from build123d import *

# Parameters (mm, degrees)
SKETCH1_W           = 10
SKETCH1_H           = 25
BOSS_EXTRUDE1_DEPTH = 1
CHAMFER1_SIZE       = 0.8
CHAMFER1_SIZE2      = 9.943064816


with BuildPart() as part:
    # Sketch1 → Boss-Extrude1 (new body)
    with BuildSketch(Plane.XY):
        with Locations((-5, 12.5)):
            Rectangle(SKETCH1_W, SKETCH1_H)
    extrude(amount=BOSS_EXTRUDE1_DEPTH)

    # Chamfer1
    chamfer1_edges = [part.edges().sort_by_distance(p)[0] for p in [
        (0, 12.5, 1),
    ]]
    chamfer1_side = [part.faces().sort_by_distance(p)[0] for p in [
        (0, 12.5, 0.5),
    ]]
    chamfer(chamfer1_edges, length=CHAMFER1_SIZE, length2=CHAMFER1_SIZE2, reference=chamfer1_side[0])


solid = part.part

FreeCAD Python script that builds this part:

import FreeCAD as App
import Part
import Sketcher


def edges_at(feature, points):
    """Names of the edges that pass closest to the given points."""
    edges = feature.Shape.Edges
    near = lambda p: min(range(len(edges)), key=lambda i: edges[i].distToShape(Part.Vertex(*p))[0])
    return sorted({f"Edge{near(p) + 1}" for p in points})

doc = App.newDocument("Part")
params = doc.addObject("Spreadsheet::Sheet", "Params")
for row, (alias, value) in enumerate([
    ("sketch1_width", "10 mm"),
    ("sketch1_height", "25 mm"),
    ("pad1_length", "1 mm"),
    ("chamfer_size", "0.8 mm"),
    ("chamfer_size2", "9.943065 mm"),
], start=1):
    params.set(f"A{row}", alias)
    params.set(f"B{row}", "=" + value)
    params.setAlias(f"B{row}", alias)

body = doc.addObject("PartDesign::Body", "Body")

sketch1 = doc.addObject("Sketcher::SketchObject", "Sketch")
body.addObject(sketch1)
sketch1.AttachmentSupport = (doc.XY_Plane, [""])
sketch1.MapMode = "FlatFace"
sketch1.addGeometry([
    Part.LineSegment(App.Vector(-10, 25, 0), App.Vector(-10, 0, 0)),
    Part.LineSegment(App.Vector(-10, 0, 0), App.Vector(0, 0, 0)),
    Part.LineSegment(App.Vector(0, 0, 0), App.Vector(0, 25, 0)),
    Part.LineSegment(App.Vector(0, 25, 0), App.Vector(-10, 25, 0)),
], False)
sketch1.addConstraint([
    Sketcher.Constraint("Coincident", 0, 2, 1, 1),
    Sketcher.Constraint("Coincident", 1, 2, 2, 1),
    Sketcher.Constraint("Coincident", 2, 2, 3, 1),
    Sketcher.Constraint("Coincident", 3, 2, 0, 1),
    Sketcher.Constraint("Vertical", 0),
    Sketcher.Constraint("Horizontal", 1),
    Sketcher.Constraint("Vertical", 2),
    Sketcher.Constraint("Horizontal", 3),
    Sketcher.Constraint("Coincident", 1, 2, -1, 1),
    Sketcher.Constraint("DistanceX", 1, 1, 1, 2, 10.0),
    Sketcher.Constraint("DistanceY", 0, 2, 0, 1, 25.0),
])
sketch1.setExpression("Constraints[9]", "Params.sketch1_width")
sketch1.setExpression("Constraints[10]", "Params.sketch1_height")
pad1 = doc.addObject("PartDesign::Pad", "Pad")
body.addObject(pad1)
pad1.Profile = sketch1
pad1.setExpression("Length", "Params.pad1_length")
doc.recompute()

chamfer = doc.addObject("PartDesign::Chamfer", "Chamfer")
body.addObject(chamfer)
chamfer.Base = (pad1, edges_at(pad1, [(0, 12.5, 1)]))
chamfer.ChamferType = "Two distances"
chamfer.setExpression("Size", "Params.chamfer_size")
chamfer.setExpression("Size2", "Params.chamfer_size2")

doc.recompute()
